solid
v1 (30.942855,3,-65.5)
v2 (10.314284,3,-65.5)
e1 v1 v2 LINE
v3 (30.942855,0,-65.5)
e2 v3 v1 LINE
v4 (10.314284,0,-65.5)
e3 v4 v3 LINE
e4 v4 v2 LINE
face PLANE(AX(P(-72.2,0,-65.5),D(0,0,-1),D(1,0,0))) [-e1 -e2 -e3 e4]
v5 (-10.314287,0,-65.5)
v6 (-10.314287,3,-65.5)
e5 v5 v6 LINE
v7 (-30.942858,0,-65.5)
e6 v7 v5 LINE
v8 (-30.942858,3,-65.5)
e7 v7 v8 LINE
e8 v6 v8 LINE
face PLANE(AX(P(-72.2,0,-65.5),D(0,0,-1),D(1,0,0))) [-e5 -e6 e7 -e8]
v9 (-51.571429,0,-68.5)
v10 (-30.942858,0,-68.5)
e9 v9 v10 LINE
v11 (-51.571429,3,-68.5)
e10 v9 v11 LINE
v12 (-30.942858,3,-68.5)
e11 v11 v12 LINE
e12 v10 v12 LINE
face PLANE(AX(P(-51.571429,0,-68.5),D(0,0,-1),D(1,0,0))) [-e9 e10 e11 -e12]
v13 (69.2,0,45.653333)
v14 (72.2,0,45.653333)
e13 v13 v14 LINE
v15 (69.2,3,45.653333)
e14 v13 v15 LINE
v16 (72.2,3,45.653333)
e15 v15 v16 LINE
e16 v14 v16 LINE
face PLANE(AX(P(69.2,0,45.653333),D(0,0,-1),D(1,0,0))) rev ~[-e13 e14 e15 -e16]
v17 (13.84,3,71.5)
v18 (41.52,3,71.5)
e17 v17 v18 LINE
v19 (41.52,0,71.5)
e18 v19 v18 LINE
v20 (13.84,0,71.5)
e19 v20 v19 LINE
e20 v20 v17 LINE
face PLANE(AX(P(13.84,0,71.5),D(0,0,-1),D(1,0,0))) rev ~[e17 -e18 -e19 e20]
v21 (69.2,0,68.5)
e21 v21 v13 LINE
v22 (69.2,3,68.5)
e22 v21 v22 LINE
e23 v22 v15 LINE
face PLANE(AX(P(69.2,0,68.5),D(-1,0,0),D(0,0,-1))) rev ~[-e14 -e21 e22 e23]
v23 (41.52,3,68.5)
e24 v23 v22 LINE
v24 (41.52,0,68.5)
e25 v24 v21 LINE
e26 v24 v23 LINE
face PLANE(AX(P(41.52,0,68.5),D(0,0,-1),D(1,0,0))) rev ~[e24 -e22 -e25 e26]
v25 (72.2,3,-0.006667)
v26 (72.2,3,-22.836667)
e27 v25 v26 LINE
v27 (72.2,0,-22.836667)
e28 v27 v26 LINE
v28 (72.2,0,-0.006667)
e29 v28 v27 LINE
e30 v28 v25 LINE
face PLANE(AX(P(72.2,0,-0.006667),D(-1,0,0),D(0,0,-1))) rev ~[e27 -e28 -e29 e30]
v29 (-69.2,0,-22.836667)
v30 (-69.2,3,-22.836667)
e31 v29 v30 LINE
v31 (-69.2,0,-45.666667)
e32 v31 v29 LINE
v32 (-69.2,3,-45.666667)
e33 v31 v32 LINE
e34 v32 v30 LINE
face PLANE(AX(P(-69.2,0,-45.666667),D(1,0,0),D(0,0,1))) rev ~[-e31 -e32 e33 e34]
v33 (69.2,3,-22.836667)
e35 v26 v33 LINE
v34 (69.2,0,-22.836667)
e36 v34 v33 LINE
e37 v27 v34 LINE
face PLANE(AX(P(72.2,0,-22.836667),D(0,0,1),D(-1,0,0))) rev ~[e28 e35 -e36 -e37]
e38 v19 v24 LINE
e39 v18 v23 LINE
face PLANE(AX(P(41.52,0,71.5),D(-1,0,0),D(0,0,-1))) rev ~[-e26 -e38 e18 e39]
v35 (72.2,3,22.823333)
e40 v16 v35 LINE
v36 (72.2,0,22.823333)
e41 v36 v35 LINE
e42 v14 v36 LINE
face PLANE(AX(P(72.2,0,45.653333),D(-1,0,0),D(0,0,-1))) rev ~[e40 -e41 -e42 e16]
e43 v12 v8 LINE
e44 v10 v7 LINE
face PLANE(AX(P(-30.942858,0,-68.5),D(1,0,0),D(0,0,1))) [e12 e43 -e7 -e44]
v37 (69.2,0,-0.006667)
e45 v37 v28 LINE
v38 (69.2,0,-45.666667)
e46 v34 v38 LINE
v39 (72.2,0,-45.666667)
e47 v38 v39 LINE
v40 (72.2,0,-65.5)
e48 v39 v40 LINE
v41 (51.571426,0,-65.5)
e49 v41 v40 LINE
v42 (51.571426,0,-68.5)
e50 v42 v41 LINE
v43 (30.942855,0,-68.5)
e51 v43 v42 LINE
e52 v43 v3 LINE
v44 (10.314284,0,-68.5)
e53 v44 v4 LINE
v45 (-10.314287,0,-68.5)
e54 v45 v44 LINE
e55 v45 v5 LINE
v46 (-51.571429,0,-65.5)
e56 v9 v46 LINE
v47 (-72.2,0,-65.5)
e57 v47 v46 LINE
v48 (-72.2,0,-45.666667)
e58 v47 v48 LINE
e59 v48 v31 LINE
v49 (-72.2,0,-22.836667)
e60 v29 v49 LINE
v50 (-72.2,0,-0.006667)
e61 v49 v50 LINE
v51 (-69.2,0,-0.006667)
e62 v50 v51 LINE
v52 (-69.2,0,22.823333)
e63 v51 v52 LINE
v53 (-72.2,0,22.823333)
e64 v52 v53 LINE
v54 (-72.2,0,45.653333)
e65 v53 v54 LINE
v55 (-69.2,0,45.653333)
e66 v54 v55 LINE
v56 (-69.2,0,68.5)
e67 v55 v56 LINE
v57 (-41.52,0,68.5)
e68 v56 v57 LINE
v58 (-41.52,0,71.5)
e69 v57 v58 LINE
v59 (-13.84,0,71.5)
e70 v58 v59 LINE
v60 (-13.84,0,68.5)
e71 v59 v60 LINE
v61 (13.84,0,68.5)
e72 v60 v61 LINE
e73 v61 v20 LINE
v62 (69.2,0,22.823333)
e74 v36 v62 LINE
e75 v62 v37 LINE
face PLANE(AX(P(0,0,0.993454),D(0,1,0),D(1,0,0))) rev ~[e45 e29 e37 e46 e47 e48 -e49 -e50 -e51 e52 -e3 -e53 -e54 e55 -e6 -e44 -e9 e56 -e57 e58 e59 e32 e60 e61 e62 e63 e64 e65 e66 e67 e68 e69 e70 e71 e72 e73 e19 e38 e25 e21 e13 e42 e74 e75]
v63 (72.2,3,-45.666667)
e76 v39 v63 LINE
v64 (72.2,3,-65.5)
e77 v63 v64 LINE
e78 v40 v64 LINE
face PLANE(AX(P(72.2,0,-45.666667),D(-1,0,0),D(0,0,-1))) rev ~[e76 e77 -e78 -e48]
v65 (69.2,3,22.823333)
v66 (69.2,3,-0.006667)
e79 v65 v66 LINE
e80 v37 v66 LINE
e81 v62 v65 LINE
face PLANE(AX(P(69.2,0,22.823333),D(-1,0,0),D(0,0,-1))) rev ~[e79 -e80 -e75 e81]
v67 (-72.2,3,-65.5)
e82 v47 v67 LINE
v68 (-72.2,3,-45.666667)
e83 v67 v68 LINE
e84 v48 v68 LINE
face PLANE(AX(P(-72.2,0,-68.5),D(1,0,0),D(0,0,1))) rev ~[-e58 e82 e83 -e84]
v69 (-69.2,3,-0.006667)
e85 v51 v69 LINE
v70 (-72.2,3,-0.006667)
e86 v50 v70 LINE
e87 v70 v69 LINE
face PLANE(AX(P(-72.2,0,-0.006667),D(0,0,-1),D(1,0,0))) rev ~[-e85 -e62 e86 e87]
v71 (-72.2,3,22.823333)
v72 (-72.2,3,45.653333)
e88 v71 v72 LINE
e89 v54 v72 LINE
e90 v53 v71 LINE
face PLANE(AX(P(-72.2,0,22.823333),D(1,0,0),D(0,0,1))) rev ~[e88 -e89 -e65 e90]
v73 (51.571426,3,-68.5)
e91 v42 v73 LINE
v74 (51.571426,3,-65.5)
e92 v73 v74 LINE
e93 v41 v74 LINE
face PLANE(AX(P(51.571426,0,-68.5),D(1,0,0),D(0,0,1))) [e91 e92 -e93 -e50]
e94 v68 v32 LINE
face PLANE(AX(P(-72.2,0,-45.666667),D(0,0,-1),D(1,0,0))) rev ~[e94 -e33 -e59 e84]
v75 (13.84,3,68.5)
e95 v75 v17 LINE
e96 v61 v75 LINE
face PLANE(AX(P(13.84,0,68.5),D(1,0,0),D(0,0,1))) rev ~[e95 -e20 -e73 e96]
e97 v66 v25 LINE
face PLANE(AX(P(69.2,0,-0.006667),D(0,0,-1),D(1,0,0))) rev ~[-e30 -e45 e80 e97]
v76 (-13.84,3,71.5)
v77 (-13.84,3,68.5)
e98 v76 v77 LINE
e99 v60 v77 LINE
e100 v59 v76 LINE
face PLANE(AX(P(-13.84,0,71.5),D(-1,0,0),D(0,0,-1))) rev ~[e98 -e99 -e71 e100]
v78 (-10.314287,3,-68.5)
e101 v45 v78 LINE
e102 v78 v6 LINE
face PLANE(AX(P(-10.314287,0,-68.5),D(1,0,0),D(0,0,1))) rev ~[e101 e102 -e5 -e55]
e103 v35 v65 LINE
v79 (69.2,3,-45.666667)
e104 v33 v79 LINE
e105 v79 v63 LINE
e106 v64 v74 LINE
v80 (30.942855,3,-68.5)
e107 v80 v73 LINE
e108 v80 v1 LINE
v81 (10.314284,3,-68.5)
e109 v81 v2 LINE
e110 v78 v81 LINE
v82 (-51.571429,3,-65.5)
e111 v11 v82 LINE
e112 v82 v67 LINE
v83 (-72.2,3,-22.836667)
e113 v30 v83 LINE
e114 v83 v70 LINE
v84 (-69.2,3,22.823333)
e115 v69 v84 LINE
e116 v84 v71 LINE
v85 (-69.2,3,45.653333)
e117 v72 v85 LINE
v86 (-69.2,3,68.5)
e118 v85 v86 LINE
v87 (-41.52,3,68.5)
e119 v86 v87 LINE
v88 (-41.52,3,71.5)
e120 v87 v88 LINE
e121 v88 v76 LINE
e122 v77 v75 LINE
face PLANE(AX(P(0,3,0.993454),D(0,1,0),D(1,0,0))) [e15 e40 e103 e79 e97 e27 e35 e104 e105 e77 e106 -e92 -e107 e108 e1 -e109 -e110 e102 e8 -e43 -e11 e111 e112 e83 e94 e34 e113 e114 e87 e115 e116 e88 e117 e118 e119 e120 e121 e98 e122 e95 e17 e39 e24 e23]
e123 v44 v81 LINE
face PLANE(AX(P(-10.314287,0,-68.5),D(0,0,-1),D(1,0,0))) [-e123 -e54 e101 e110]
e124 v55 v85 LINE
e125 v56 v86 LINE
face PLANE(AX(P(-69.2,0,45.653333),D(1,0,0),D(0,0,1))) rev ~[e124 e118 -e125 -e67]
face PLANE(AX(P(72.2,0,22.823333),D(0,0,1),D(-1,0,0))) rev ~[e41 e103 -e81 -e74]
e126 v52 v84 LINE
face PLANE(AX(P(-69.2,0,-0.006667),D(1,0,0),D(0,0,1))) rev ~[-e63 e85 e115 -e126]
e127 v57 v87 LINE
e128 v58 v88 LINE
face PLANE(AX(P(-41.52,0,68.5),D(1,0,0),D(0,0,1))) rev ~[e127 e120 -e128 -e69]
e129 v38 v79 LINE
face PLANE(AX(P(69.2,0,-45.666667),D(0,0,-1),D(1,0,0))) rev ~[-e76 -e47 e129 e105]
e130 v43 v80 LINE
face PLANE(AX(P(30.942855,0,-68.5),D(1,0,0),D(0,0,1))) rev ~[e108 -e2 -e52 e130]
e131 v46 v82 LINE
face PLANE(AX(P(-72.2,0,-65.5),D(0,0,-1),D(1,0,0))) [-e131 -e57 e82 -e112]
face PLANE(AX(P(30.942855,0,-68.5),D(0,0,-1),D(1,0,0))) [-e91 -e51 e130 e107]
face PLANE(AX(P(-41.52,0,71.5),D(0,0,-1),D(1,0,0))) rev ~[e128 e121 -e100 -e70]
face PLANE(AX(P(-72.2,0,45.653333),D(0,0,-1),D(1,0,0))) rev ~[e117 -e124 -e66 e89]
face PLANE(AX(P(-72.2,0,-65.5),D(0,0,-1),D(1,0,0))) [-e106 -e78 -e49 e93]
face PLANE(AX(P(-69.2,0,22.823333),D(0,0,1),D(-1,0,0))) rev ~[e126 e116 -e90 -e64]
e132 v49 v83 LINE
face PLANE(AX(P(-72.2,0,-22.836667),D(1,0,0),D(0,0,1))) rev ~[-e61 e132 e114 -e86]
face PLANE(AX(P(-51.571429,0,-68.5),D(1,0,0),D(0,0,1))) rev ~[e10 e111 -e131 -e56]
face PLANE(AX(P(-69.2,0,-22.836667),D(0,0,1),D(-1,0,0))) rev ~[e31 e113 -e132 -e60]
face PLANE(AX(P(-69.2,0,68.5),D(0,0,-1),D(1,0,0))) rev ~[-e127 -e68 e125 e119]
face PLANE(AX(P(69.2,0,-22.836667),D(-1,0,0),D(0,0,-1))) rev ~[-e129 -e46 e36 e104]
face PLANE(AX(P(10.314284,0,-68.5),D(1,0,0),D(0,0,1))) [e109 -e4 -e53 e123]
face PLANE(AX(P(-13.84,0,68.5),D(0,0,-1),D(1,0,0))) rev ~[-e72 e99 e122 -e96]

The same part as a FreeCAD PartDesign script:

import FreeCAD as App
import Part
import Sketcher
from FreeCAD import Vector


def add_polygon(sketch, points):
    """Adds a closed chain of lines whose ends are joined by coincident constraints."""
    first, n = sketch.GeometryCount, len(points)
    for a, b in zip(points, points[1:] + points[:1]):
        sketch.addGeometry(Part.LineSegment(App.Vector(*a, 0), App.Vector(*b, 0)), False)
    for i in range(n):
        sketch.addConstraint(Sketcher.Constraint("Coincident", first + i, 2, first + (i + 1) % n, 1))

doc = App.newDocument("Part")
params = doc.addObject("Spreadsheet::Sheet", "Params")
for row, (alias, value) in enumerate([
    ("sketch1_width", "3 mm"),
    ("sketch1_width2", "144.4 mm"),
    ("sketch1_height", "22.83 mm"),
    ("pad1_length", "3 mm"),
    ("sketch2_height", "3 mm"),
    ("sketch2_width", "144.4 mm"),
    ("sketch3_height", "3 mm"),
    ("pad2_length", "3 mm"),
], start=1):
    params.set(f"A{row}", alias)
    params.set(f"B{row}", "=" + value)
    params.setAlias(f"B{row}", alias)

body = doc.addObject("PartDesign::Body", "Body")

sketch1 = body.newObject("Sketcher::SketchObject", "Sketch")
sketch1.AttachmentSupport = (doc.getObject("XZ_Plane"), [""])
sketch1.MapMode = "FlatFace"
add_polygon(sketch1, [(-69.2, 68.5), (-41.52, 68.5), (-41.52, 71.5), (-13.84, 71.5), (-13.84, 68.5), (13.84, 68.5), (13.84, 71.5), (41.52, 71.5), (41.52, 68.5), (69.2, 68.5), (69.2, 45.653333), (72.2, 45.653333), (72.2, 22.823333), (69.2, 22.823333), (69.2, -0.006667), (72.2, -0.006667), (72.2, -22.836667), (69.2, -22.836667), (69.2, -45.666667), (72.2, -45.666667), (72.2, -68.5), (-72.2, -68.5), (-72.2, -45.666667), (-69.2, -45.666667), (-69.2, -22.836667), (-72.2, -22.836667), (-72.2, -0.006667), (-69.2, -0.006667), (-69.2, 22.823333), (-72.2, 22.823333), (-72.2, 45.653333), (-69.2, 45.653333)])
sketch1.addConstraint(Sketcher.Constraint("Horizontal", 0))
sketch1.addConstraint(Sketcher.Constraint("Vertical", 1))
sketch1.addConstraint(Sketcher.Constraint("Horizontal", 2))
sketch1.addConstraint(Sketcher.Constraint("Vertical", 3))
sketch1.addConstraint(Sketcher.Constraint("Horizontal", 4))
sketch1.addConstraint(Sketcher.Constraint("Vertical", 5))
sketch1.addConstraint(Sketcher.Constraint("Horizontal", 6))
sketch1.addConstraint(Sketcher.Constraint("Vertical", 7))
sketch1.addConstraint(Sketcher.Constraint("Horizontal", 8))
sketch1.addConstraint(Sketcher.Constraint("Vertical", 9))
sketch1.addConstraint(Sketcher.Constraint("Horizontal", 10))
sketch1.addConstraint(Sketcher.Constraint("Vertical", 11))
sketch1.addConstraint(Sketcher.Constraint("Horizontal", 12))
sketch1.addConstraint(Sketcher.Constraint("Vertical", 13))
sketch1.addConstraint(Sketcher.Constraint("Horizontal", 14))
sketch1.addConstraint(Sketcher.Constraint("Vertical", 15))
sketch1.addConstraint(Sketcher.Constraint("Horizontal", 16))
sketch1.addConstraint(Sketcher.Constraint("Vertical", 17))
sketch1.addConstraint(Sketcher.Constraint("Horizontal", 18))
sketch1.addConstraint(Sketcher.Constraint("Vertical", 19))
sketch1.addConstraint(Sketcher.Constraint("Horizontal", 20))
sketch1.addConstraint(Sketcher.Constraint("Vertical", 21))
sketch1.addConstraint(Sketcher.Constraint("Horizontal", 22))
sketch1.addConstraint(Sketcher.Constraint("Vertical", 23))
sketch1.addConstraint(Sketcher.Constraint("Horizontal", 24))
sketch1.addConstraint(Sketcher.Constraint("Vertical", 25))
sketch1.addConstraint(Sketcher.Constraint("Horizontal", 26))
sketch1.addConstraint(Sketcher.Constraint("Vertical", 27))
sketch1.addConstraint(Sketcher.Constraint("Horizontal", 28))
sketch1.addConstraint(Sketcher.Constraint("Vertical", 29))
sketch1.addConstraint(Sketcher.Constraint("Horizontal", 30))
sketch1.addConstraint(Sketcher.Constraint("Vertical", 31))
sketch1.addConstraint(Sketcher.Constraint("Symmetric", 2, 2, 5, 2, -2))
sketch1.addConstraint(Sketcher.Constraint("Symmetric", 0, 2, 7, 2, -2))
sketch1.addConstraint(Sketcher.Constraint("Symmetric", 18, 2, 21, 2, -2))
sketch1.addConstraint(Sketcher.Constraint("Symmetric", 16, 2, 23, 2, -2))
sketch1.addConstraint(Sketcher.Constraint("Symmetric", 14, 2, 25, 2, -2))
sketch1.addConstraint(Sketcher.Constraint("Symmetric", 12, 2, 27, 2, -2))
sketch1.addConstraint(Sketcher.Constraint("Symmetric", 10, 2, 29, 2, -2))
sketch1.addConstraint(Sketcher.Constraint("Horizontal", 0, 2, 3, 2))
sketch1.addConstraint(Sketcher.Constraint("Vertical", 9, 2, 12, 2))
sketch1.addConstraint(Sketcher.Constraint("Vertical", 11, 2, 14, 2))
sketch1.addConstraint(Sketcher.Constraint("Vertical", 13, 2, 16, 2))
sketch1.addConstraint(Sketcher.Constraint("Vertical", 15, 2, 18, 2))
sketch1.addConstraint(Sketcher.Constraint("Vertical", 27, 2, 30, 2))
sketch1.addConstraint(Sketcher.Constraint("Equal", 0, 2))
sketch1.addConstraint(Sketcher.Constraint("Equal", 2, 4))
sketch1.addConstraint(Sketcher.Constraint("Equal", 30, 1))
sketch1.addConstraint(Sketcher.Constraint("Equal", 11, 13))
sketch1.addConstraint(Sketcher.Constraint("Equal", 13, 15))
sketch1.addConstraint(Sketcher.Constraint("Equal", 15, 17))
sketch1.addConstraint(Sketcher.Constraint("DistanceX", 10, 1, 10, 2, 3.0))
sketch1.addConstraint(Sketcher.Constraint("DistanceX", 20, 2, 20, 1, 144.4))
sketch1.addConstraint(Sketcher.Constraint("DistanceY", 20, 2, 0, 2, 137.0))
sketch1.addConstraint(Sketcher.Constraint("DistanceY", 11, 2, 11, 1, 22.83))
sketch1.addConstraint(Sketcher.Constraint("DistanceY", -1, 1, 0, 2, 68.5))
sketch1.addConstraint(Sketcher.Constraint("DistanceY", 9, 2, 9, 1, 22.846667))
sketch1.setExpression("Constraints[83]", "Params.sketch1_width")
sketch1.setExpression("Constraints[84]", "Params.sketch1_width2")
sketch1.setExpression("Constraints[86]", "Params.sketch1_height")
pad1 = body.newObject("PartDesign::Pad", "Pad")
pad1.Profile = sketch1
pad1.setExpression("Length", "Params.pad1_length")
pad1.Reversed = True

sketch2 = body.newObject("Sketcher::SketchObject", "Sketch001")
sketch2.AttachmentSupport = (doc.getObject("XZ_Plane"), [""])
sketch2.MapMode = "FlatFace"
add_polygon(sketch2, [(-72.2, -65.5), (-72.2, -68.5), (72.2, -68.5), (72.2, -65.5)])
sketch2.addConstraint(Sketcher.Constraint("Vertical", 0))
sketch2.addConstraint(Sketcher.Constraint("Horizontal", 1))
sketch2.addConstraint(Sketcher.Constraint("Vertical", 2))
sketch2.addConstraint(Sketcher.Constraint("Horizontal", 3))
sketch2.addConstraint(Sketcher.Constraint("DistanceY", 0, 2, 0, 1, 3.0))
sketch2.addConstraint(Sketcher.Constraint("DistanceX", 1, 1, 1, 2, 144.4))
sketch2.addConstraint(Sketcher.Constraint("DistanceX", 0, 2, -1, 1, 72.2))
sketch2.addConstraint(Sketcher.Constraint("DistanceY", 0, 2, -1, 1, 68.5))
sketch2.setExpression("Constraints[8]", "Params.sketch2_height")
sketch2.setExpression("Constraints[9]", "Params.sketch2_width")
pocket1 = body.newObject("PartDesign::Pocket", "Pocket")
pocket1.Profile = sketch2
pocket1.Type = "ThroughAll"

sketch3 = body.newObject("Sketcher::SketchObject", "Sketch002")
sketch3.AttachmentSupport = (doc.getObject("XZ_Plane"), [""])
sketch3.MapMode = "FlatFace"
add_polygon(sketch3, [(-51.571429, -65.5), (-51.571429, -68.5), (-30.942858, -68.5), (-30.942858, -65.5)])
add_polygon(sketch3, [(-10.314287, -65.5), (-10.314287, -68.5), (10.314284, -68.5), (10.314284, -65.5)])
add_polygon(sketch3, [(30.942855, -65.5), (30.942855, -68.5), (51.571426, -68.5), (51.571426, -65.5)])
sketch3.addConstraint(Sketcher.Constraint("Vertical", 0))
sketch3.addConstraint(Sketcher.Constraint("Horizontal", 1))
sketch3.addConstraint(Sketcher.Constraint("Vertical", 2))
sketch3.addConstraint(Sketcher.Constraint("Horizontal", 3))
sketch3.addConstraint(Sketcher.Constraint("Vertical", 4))
sketch3.addConstraint(Sketcher.Constraint("Horizontal", 5))
sketch3.addConstraint(Sketcher.Constraint("Vertical", 6))
sketch3.addConstraint(Sketcher.Constraint("Horizontal", 7))
sketch3.addConstraint(Sketcher.Constraint("Vertical", 8))
sketch3.addConstraint(Sketcher.Constraint("Horizontal", 9))
sketch3.addConstraint(Sketcher.Constraint("Vertical", 10))
sketch3.addConstraint(Sketcher.Constraint("Horizontal", 11))
sketch3.addConstraint(Sketcher.Constraint("Symmetric", 1, 2, 8, 2, -2))
sketch3.addConstraint(Sketcher.Constraint("Symmetric", 3, 2, 10, 2, -2))
sketch3.addConstraint(Sketcher.Constraint("Horizontal", 1, 2, 4, 2))
sketch3.addConstraint(Sketcher.Constraint("Horizontal", 3, 2, 6, 2))
sketch3.addConstraint(Sketcher.Constraint("Equal", 3, 5))
sketch3.addConstraint(Sketcher.Constraint("DistanceY", 0, 2, 0, 1, 3.0))
sketch3.addConstraint(Sketcher.Constraint("DistanceY", 0, 2, -1, 1, 68.5))
sketch3.addConstraint(Sketcher.Constraint("DistanceX", 1, 1, 1, 2, 20.628571))
sketch3.addConstraint(Sketcher.Constraint("DistanceX", 0, 2, -1, 1, 51.571429))
sketch3.addConstraint(Sketcher.Constraint("DistanceX", 1, 2, 4, 2, 20.628571))
sketch3.setExpression("Constraints[29]", "Params.sketch3_height")
pad2 = body.newObject("PartDesign::Pad", "Pad001")
pad2.Profile = sketch3
pad2.setExpression("Length", "Params.pad2_length")
pad2.Reversed = True

doc.recompute()
